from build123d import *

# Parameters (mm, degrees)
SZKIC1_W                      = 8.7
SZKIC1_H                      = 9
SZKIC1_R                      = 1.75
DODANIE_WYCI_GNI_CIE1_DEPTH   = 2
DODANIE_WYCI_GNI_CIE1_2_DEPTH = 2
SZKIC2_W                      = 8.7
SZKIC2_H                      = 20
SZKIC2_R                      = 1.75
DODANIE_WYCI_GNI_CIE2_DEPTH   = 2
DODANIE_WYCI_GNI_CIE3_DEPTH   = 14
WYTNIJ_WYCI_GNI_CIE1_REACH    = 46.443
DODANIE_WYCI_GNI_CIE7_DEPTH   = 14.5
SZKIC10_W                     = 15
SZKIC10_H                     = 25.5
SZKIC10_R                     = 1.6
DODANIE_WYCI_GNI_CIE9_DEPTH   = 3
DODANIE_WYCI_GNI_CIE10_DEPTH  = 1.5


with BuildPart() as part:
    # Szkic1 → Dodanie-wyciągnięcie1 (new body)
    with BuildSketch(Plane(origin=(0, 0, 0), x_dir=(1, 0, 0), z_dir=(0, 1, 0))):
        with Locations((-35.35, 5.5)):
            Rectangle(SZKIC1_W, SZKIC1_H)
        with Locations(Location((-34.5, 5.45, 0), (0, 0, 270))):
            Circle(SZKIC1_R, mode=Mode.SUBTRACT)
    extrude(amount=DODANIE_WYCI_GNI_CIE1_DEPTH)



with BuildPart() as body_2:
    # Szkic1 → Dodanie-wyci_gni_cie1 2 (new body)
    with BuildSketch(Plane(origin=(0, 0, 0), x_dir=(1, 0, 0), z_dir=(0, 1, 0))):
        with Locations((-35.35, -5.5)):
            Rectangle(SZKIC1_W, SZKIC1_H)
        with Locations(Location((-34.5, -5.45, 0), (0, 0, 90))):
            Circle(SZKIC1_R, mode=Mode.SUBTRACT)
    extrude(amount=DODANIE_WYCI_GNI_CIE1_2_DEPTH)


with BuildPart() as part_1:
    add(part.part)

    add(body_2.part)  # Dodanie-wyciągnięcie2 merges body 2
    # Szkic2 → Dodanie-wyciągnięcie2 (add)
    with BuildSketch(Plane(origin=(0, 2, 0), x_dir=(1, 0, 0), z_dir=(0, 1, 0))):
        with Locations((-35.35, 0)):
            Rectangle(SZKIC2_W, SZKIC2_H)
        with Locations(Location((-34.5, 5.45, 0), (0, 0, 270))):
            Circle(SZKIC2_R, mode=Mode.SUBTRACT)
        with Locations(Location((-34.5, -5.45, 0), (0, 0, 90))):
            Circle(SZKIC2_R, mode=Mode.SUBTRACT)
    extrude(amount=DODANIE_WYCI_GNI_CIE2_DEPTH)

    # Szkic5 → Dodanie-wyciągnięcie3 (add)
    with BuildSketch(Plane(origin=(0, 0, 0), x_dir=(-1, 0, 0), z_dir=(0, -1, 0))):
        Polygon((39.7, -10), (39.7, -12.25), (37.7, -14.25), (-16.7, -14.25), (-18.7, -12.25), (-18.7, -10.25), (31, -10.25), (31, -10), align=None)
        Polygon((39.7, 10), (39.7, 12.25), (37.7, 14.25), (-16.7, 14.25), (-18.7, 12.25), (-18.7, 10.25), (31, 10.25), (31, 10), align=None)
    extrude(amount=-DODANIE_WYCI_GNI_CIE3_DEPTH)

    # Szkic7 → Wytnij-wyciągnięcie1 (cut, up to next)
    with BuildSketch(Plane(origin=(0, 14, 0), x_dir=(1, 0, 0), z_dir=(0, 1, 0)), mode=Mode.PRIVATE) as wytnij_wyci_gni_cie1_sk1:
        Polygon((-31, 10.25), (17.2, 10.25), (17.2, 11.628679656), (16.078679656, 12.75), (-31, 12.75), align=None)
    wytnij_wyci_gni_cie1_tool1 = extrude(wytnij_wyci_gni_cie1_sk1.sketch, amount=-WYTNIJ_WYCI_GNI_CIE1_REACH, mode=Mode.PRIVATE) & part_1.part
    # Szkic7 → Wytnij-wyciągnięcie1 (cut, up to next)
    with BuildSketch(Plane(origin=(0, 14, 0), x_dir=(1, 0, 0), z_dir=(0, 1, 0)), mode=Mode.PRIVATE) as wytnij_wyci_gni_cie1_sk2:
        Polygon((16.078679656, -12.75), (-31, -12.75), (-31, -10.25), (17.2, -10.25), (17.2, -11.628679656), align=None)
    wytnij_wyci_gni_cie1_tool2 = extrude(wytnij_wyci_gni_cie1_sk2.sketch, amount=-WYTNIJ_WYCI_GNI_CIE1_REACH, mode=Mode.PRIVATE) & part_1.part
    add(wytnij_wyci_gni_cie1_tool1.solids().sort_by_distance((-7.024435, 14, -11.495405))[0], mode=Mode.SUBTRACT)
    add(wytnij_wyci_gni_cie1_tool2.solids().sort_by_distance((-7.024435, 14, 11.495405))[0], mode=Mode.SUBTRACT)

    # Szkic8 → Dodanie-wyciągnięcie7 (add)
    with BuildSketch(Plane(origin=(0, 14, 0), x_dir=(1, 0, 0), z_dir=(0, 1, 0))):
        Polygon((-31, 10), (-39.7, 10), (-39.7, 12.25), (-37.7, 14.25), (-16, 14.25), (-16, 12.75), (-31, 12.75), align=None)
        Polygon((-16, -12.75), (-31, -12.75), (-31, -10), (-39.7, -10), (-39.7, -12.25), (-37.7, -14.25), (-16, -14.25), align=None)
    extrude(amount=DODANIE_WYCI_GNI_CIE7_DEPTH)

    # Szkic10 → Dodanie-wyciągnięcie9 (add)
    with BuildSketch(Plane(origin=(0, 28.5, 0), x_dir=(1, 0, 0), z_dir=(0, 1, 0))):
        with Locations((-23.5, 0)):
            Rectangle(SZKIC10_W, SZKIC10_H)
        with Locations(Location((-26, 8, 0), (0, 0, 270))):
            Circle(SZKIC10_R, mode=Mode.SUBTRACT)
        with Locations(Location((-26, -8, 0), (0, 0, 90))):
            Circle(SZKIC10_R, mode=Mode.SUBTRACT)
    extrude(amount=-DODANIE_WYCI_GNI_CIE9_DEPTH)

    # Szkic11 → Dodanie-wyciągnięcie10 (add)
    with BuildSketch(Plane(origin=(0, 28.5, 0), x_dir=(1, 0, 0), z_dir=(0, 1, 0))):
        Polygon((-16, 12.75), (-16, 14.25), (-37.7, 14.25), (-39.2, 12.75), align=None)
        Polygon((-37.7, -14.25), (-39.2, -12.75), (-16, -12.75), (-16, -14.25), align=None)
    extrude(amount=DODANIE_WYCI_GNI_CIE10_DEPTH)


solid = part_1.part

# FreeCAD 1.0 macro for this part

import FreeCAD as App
import Part
import Sketcher
Q = App.Units.Quantity

doc = App.newDocument("Part")
body = doc.addObject("PartDesign::Body", "Body")

sketch1 = body.newObject("Sketcher::SketchObject", "Sketch")
sketch1.AttachmentSupport = (doc.getObject("XZ_Plane"), [""])
sketch1.MapMode = "FlatFace"
sketch1.addGeometry([
    Part.LineSegment(App.Vector(-39.7, -10, 0), App.Vector(-39.7, -1, 0)),
    Part.LineSegment(App.Vector(-39.7, -1, 0), App.Vector(-31, -1, 0)),
    Part.LineSegment(App.Vector(-31, -1, 0), App.Vector(-31, -10, 0)),
    Part.LineSegment(App.Vector(-31, -10, 0), App.Vector(-39.7, -10, 0)),
    Part.Circle(App.Vector(-34.5, -5.5, 0), App.Vector(0, 0, 1), 1.8),
], False)
sketch1.addConstraint([
    Sketcher.Constraint("Coincident", 0, 2, 1, 1),
    Sketcher.Constraint("Coincident", 1, 2, 2, 1),
    Sketcher.Constraint("Coincident", 2, 2, 3, 1),
    Sketcher.Constraint("Coincident", 3, 2, 0, 1),
    Sketcher.Constraint("Vertical", 0),
    Sketcher.Constraint("Horizontal", 1),
    Sketcher.Constraint("Vertical", 2),
    Sketcher.Constraint("Horizontal", 3),
    Sketcher.Constraint("Diameter", 4, Q("3.5 mm")),
    Sketcher.Constraint("DistanceY", 0, 1, 0, 2, Q("9 mm")),
    Sketcher.Constraint("DistanceX", 1, 1, 1, 2, Q("8.7 mm")),
    Sketcher.Constraint("DistanceY", 0, 2, -1, 1, Q("1 mm")),
    Sketcher.Constraint("DistanceX", 1, 2, -1, 1, Q("31 mm")),
    Sketcher.Constraint("DistanceX", 4, 3, -1, 1, Q("34.5 mm")),
    Sketcher.Constraint("DistanceY", 4, 3, -1, 1, Q("5.45 mm")),
])
pad1 = body.newObject("PartDesign::Pad", "Pad")
pad1.Profile = sketch1
pad1.Length = 2
pad1.Reversed = True
body2 = doc.addObject("PartDesign::Body", "Body001")

sketch2 = body2.newObject("Sketcher::SketchObject", "Sketch001")
sketch2.AttachmentSupport = (doc.getObject("XZ_Plane001"), [""])
sketch2.MapMode = "FlatFace"
sketch2.addGeometry([
    Part.LineSegment(App.Vector(-39.7, 1, 0), App.Vector(-39.7, 10, 0)),
    Part.LineSegment(App.Vector(-39.7, 10, 0), App.Vector(-31, 10, 0)),
    Part.LineSegment(App.Vector(-31, 10, 0), App.Vector(-31, 1, 0)),
    Part.LineSegment(App.Vector(-31, 1, 0), App.Vector(-39.7, 1, 0)),
    Part.Circle(App.Vector(-34.5, 5.5, 0), App.Vector(0, 0, 1), 1.8),
], False)
sketch2.addConstraint([
    Sketcher.Constraint("Coincident", 0, 2, 1, 1),
    Sketcher.Constraint("Coincident", 1, 2, 2, 1),
    Sketcher.Constraint("Coincident", 2, 2, 3, 1),
    Sketcher.Constraint("Coincident", 3, 2, 0, 1),
    Sketcher.Constraint("Vertical", 0),
    Sketcher.Constraint("Horizontal", 1),
    Sketcher.Constraint("Vertical", 2),
    Sketcher.Constraint("Horizontal", 3),
    Sketcher.Constraint("Diameter", 4, Q("3.5 mm")),
    Sketcher.Constraint("DistanceY", 0, 1, 0, 2, Q("9 mm")),
    Sketcher.Constraint("DistanceX", 1, 1, 1, 2, Q("8.7 mm")),
    Sketcher.Constraint("DistanceY", -1, 1, 0, 2, Q("10 mm")),
    Sketcher.Constraint("DistanceX", 1, 2, -1, 1, Q("31 mm")),
    Sketcher.Constraint("DistanceX", 4, 3, -1, 1, Q("34.5 mm")),
    Sketcher.Constraint("DistanceY", -1, 1, 4, 3, Q("5.45 mm")),
])
pad2 = body2.newObject("PartDesign::Pad", "Pad001")
pad2.Profile = sketch2
pad2.Length = 2
pad2.Reversed = True
body.AllowCompound = True
doc.recompute()

boolean = body.newObject("PartDesign::Boolean", "Boolean")
boolean.Type = "Fuse"
boolean.addObjects([body2])

sketch3 = body.newObject("Sketcher::SketchObject", "Sketch002")
sketch3.AttachmentSupport = (doc.getObject("XZ_Plane"), [""])
sketch3.MapMode = "FlatFace"
sketch3.AttachmentOffset = App.Placement(App.Vector(0, 0, -2), App.Rotation())
sketch3.addGeometry([
    Part.LineSegment(App.Vector(-39.7, -10, 0), App.Vector(-39.7, 10, 0)),
    Part.LineSegment(App.Vector(-39.7, 10, 0), App.Vector(-31, 10, 0)),
    Part.LineSegment(App.Vector(-31, 10, 0), App.Vector(-31, -10, 0)),
    Part.LineSegment(App.Vector(-31, -10, 0), App.Vector(-39.7, -10, 0)),
    Part.Circle(App.Vector(-34.5, 5.5, 0), App.Vector(0, 0, 1), 1.8),
    Part.Circle(App.Vector(-34.5, -5.5, 0), App.Vector(0, 0, 1), 1.8),
], False)
sketch3.addConstraint([
    Sketcher.Constraint("Coincident", 0, 2, 1, 1),
    Sketcher.Constraint("Coincident", 1, 2, 2, 1),
    Sketcher.Constraint("Coincident", 2, 2, 3, 1),
    Sketcher.Constraint("Coincident", 3, 2, 0, 1),
    Sketcher.Constraint("Vertical", 0),
    Sketcher.Constraint("Horizontal", 1),
    Sketcher.Constraint("Vertical", 2),
    Sketcher.Constraint("Horizontal", 3),
    Sketcher.Constraint("Equal", 4, 5),
    Sketcher.Constraint("Symmetric", 4, 3, 5, 3, -1),
    Sketcher.Constraint("Diameter", 4, Q("3.5 mm")),
    Sketcher.Constraint("DistanceY", 0, 1, 0, 2, Q("20 mm")),
    Sketcher.Constraint("DistanceX", 1, 1, 1, 2, Q("8.7 mm")),
    Sketcher.Constraint("DistanceY", -1, 1, 0, 2, Q("10 mm")),
    Sketcher.Constraint("DistanceX", 1, 2, -1, 1, Q("31 mm")),
    Sketcher.Constraint("DistanceX", 4, 3, -1, 1, Q("34.5 mm")),
    Sketcher.Constraint("DistanceY", 5, 3, 4, 3, Q("10.9 mm")),
])
pad3 = body.newObject("PartDesign::Pad", "Pad002")
pad3.Profile = sketch3
pad3.Length = 2
pad3.Reversed = True

sketch4 = body.newObject("Sketcher::SketchObject", "Sketch003")
sketch4.AttachmentSupport = (doc.getObject("XZ_Plane"), [""])
sketch4.MapMode = "FlatFace"
sketch4.addGeometry([
    Part.LineSegment(App.Vector(-39.7, 12.25, 0), App.Vector(-39.7, 10, 0)),
    Part.LineSegment(App.Vector(-39.7, 10, 0), App.Vector(-31, 10, 0)),
    Part.LineSegment(App.Vector(-31, 10, 0), App.Vector(-31, 10.25, 0)),
    Part.LineSegment(App.Vector(-31, 10.25, 0), App.Vector(18.7, 10.25, 0)),
    Part.LineSegment(App.Vector(18.7, 10.25, 0), App.Vector(18.7, 12.25, 0)),
    Part.LineSegment(App.Vector(18.7, 12.25, 0), App.Vector(16.7, 14.25, 0)),
    Part.LineSegment(App.Vector(16.7, 14.25, 0), App.Vector(-37.7, 14.25, 0)),
    Part.LineSegment(App.Vector(-37.7, 14.25, 0), App.Vector(-39.7, 12.25, 0)),
    Part.LineSegment(App.Vector(-39.7, -10, 0), App.Vector(-39.7, -12.25, 0)),
    Part.LineSegment(App.Vector(-39.7, -12.25, 0), App.Vector(-37.7, -14.25, 0)),
    Part.LineSegment(App.Vector(-37.7, -14.25, 0), App.Vector(16.7, -14.25, 0)),
    Part.LineSegment(App.Vector(16.7, -14.25, 0), App.Vector(18.7, -12.25, 0)),
    Part.LineSegment(App.Vector(18.7, -12.25, 0), App.Vector(18.7, -10.25, 0)),
    Part.LineSegment(App.Vector(18.7, -10.25, 0), App.Vector(-31, -10.25, 0)),
    Part.LineSegment(App.Vector(-31, -10.25, 0), App.Vector(-31, -10, 0)),
    Part.LineSegment(App.Vector(-31, -10, 0), App.Vector(-39.7, -10, 0)),
], False)
sketch4.addConstraint([
    Sketcher.Constraint("Coincident", 0, 2, 1, 1),
    Sketcher.Constraint("Coincident", 1, 2, 2, 1),
    Sketcher.Constraint("Coincident", 2, 2, 3, 1),
    Sketcher.Constraint("Coincident", 3, 2, 4, 1),
    Sketcher.Constraint("Coincident", 4, 2, 5, 1),
    Sketcher.Constraint("Coincident", 5, 2, 6, 1),
    Sketcher.Constraint("Coincident", 6, 2, 7, 1),
    Sketcher.Constraint("Coincident", 7, 2, 0, 1),
    Sketcher.Constraint("Coincident", 8, 2, 9, 1),
    Sketcher.Constraint("Coincident", 9, 2, 10, 1),
    Sketcher.Constraint("Coincident", 10, 2, 11, 1),
    Sketcher.Constraint("Coincident", 11, 2, 12, 1),
    Sketcher.Constraint("Coincident", 12, 2, 13, 1),
    Sketcher.Constraint("Coincident", 13, 2, 14, 1),
    Sketcher.Constraint("Coincident", 14, 2, 15, 1),
    Sketcher.Constraint("Coincident", 15, 2, 8, 1),
    Sketcher.Constraint("Vertical", 0),
    Sketcher.Constraint("Horizontal", 1),
    Sketcher.Constraint("Vertical", 2),
    Sketcher.Constraint("Horizontal", 3),
    Sketcher.Constraint("Vertical", 4),
    Sketcher.Constraint("Horizontal", 6),
    Sketcher.Constraint("Vertical", 8),
    Sketcher.Constraint("Horizontal", 10),
    Sketcher.Constraint("Vertical", 12),
    Sketcher.Constraint("Horizontal", 13),
    Sketcher.Constraint("Vertical", 14),
    Sketcher.Constraint("Horizontal", 15),
    Sketcher.Constraint("Symmetric", 7, 2, 8, 2, -1),
    Sketcher.Constraint("Symmetric", 6, 2, 9, 2, -1),
    Sketcher.Constraint("Symmetric", 4, 2, 11, 2, -1),
    Sketcher.Constraint("Symmetric", 2, 2, 13, 2, -1),
    Sketcher.Constraint("Perpendicular", 5, 7),
    Sketcher.Constraint("Perpendicular", 7, 9),
    Sketcher.Constraint("Perpendicular", 9, 11),
    Sketcher.Constraint("Horizontal", 4, 2, 7, 2),
    Sketcher.Constraint("Equal", 0, 8),
    Sketcher.Constraint("DistanceY", 4, 1, 4, 2, Q("2 mm")),
    Sketcher.Constraint("DistanceX", 1, 1, 1, 2, Q("8.7 mm")),
    Sketcher.Constraint("DistanceX", 3, 1, 3, 2, Q("49.7 mm")),
    Sketcher.Constraint("DistanceX", 6, 2, 6, 1, Q("54.4 mm")),
    Sketcher.Constraint("DistanceY", -1, 1, 0, 2, Q("10 mm")),
    Sketcher.Constraint("DistanceX", 1, 2, -1, 1, Q("31 mm")),
    Sketcher.Constraint("DistanceY", 0, 2, 0, 1, Q("2.25 mm")),
])
pad4 = body.newObject("PartDesign::Pad", "Pad003")
pad4.Profile = sketch4
pad4.Length = 14
pad4.Reversed = True

sketch5 = body.newObject("Sketcher::SketchObject", "Sketch004")
sketch5.AttachmentSupport = (doc.getObject("XZ_Plane"), [""])
sketch5.MapMode = "FlatFace"
sketch5.AttachmentOffset = App.Placement(App.Vector(0, 0, -14), App.Rotation())
sketch5.addGeometry([
    Part.LineSegment(App.Vector(-31, -10.2, 0), App.Vector(17.2, -10.2, 0)),
    Part.LineSegment(App.Vector(17.2, -10.2, 0), App.Vector(17.2, -11.6, 0)),
    Part.LineSegment(App.Vector(17.2, -11.6, 0), App.Vector(16.1, -12.8, 0)),
    Part.LineSegment(App.Vector(16.1, -12.8, 0), App.Vector(-31, -12.8, 0)),
    Part.LineSegment(App.Vector(-31, -12.8, 0), App.Vector(-31, -10.2, 0)),
], False)
sketch5.addConstraint([
    Sketcher.Constraint("Coincident", 0, 2, 1, 1),
    Sketcher.Constraint("Coincident", 1, 2, 2, 1),
    Sketcher.Constraint("Coincident", 2, 2, 3, 1),
    Sketcher.Constraint("Coincident", 3, 2, 4, 1),
    Sketcher.Constraint("Coincident", 4, 2, 0, 1),
    Sketcher.Constraint("Horizontal", 0),
    Sketcher.Constraint("Vertical", 1),
    Sketcher.Constraint("Horizontal", 3),
    Sketcher.Constraint("Vertical", 4),
    Sketcher.Constraint("Angle", 2, Q("-135 deg")),
    Sketcher.Constraint("DistanceX", 0, 1, 0, 2, Q("48.2 mm")),
    Sketcher.Constraint("DistanceY", 4, 1, 4, 2, Q("2.5 mm")),
    Sketcher.Constraint("DistanceX", 3, 2, -1, 1, Q("31 mm")),
    Sketcher.Constraint("DistanceY", 0, 2, -1, 1, Q("10.25 mm")),
    Sketcher.Constraint("DistanceX", 3, 2, 3, 1, Q("47.07868 mm")),
])
pocket1 = body.newObject("PartDesign::Pocket", "Pocket")
pocket1.Profile = sketch5
pocket1.Type = "UpToFirst"
pocket1.Reversed = True

sketch6 = body.newObject("Sketcher::SketchObject", "Sketch005")
sketch6.AttachmentSupport = (doc.getObject("XZ_Plane"), [""])
sketch6.MapMode = "FlatFace"
sketch6.AttachmentOffset = App.Placement(App.Vector(0, 0, -14), App.Rotation())
sketch6.addGeometry([
    Part.LineSegment(App.Vector(-31, 12.8, 0), App.Vector(16.1, 12.8, 0)),
    Part.LineSegment(App.Vector(16.1, 12.8, 0), App.Vector(17.2, 11.6, 0)),
    Part.LineSegment(App.Vector(17.2, 11.6, 0), App.Vector(17.2, 10.2, 0)),
    Part.LineSegment(App.Vector(17.2, 10.2, 0), App.Vector(-31, 10.2, 0)),
    Part.LineSegment(App.Vector(-31, 10.2, 0), App.Vector(-31, 12.8, 0)),
], False)
sketch6.addConstraint([
    Sketcher.Constraint("Coincident", 0, 2, 1, 1),
    Sketcher.Constraint("Coincident", 1, 2, 2, 1),
    Sketcher.Constraint("Coincident", 2, 2, 3, 1),
    Sketcher.Constraint("Coincident", 3, 2, 4, 1),
    Sketcher.Constraint("Coincident", 4, 2, 0, 1),
    Sketcher.Constraint("Horizontal", 0),
    Sketcher.Constraint("Vertical", 2),
    Sketcher.Constraint("Horizontal", 3),
    Sketcher.Constraint("Vertical", 4),
    Sketcher.Constraint("Angle", 1, Q("-45 deg")),
    Sketcher.Constraint("DistanceX", 3, 2, 3, 1, Q("48.2 mm")),
    Sketcher.Constraint("DistanceY", 4, 1, 4, 2, Q("2.5 mm")),
    Sketcher.Constraint("DistanceX", 3, 2, -1, 1, Q("31 mm")),
    Sketcher.Constraint("DistanceY", -1, 1, 0, 2, Q("12.75 mm")),
    Sketcher.Constraint("DistanceX", 0, 1, 0, 2, Q("47.07868 mm")),
])
pocket2 = body.newObject("PartDesign::Pocket", "Pocket001")
pocket2.Profile = sketch6
pocket2.Type = "UpToFirst"
pocket2.Reversed = True

sketch7 = body.newObject("Sketcher::SketchObject", "Sketch006")
sketch7.AttachmentSupport = (doc.getObject("XZ_Plane"), [""])
sketch7.MapMode = "FlatFace"
sketch7.AttachmentOffset = App.Placement(App.Vector(0, 0, -14), App.Rotation())
sketch7.addGeometry([
    Part.LineSegment(App.Vector(-39.7, -10, 0), App.Vector(-31, -10, 0)),
    Part.LineSegment(App.Vector(-31, -10, 0), App.Vector(-31, -12.8, 0)),
    Part.LineSegment(App.Vector(-31, -12.8, 0), App.Vector(-16, -12.8, 0)),
    Part.LineSegment(App.Vector(-16, -12.8, 0), App.Vector(-16, -14.2, 0)),
    Part.LineSegment(App.Vector(-16, -14.2, 0), App.Vector(-37.7, -14.2, 0)),
    Part.LineSegment(App.Vector(-37.7, -14.2, 0), App.Vector(-39.7, -12.2, 0)),
    Part.LineSegment(App.Vector(-39.7, -12.2, 0), App.Vector(-39.7, -10, 0)),
    Part.LineSegment(App.Vector(-16, 12.8, 0), App.Vector(-31, 12.8, 0)),
    Part.LineSegment(App.Vector(-31, 12.8, 0), App.Vector(-31, 10, 0)),
    Part.LineSegment(App.Vector(-31, 10, 0), App.Vector(-39.7, 10, 0)),
    Part.LineSegment(App.Vector(-39.7, 10, 0), App.Vector(-39.7, 12.2, 0)),
    Part.LineSegment(App.Vector(-39.7, 12.2, 0), App.Vector(-37.7, 14.2, 0)),
    Part.LineSegment(App.Vector(-37.7, 14.2, 0), App.Vector(-16, 14.2, 0)),
    Part.LineSegment(App.Vector(-16, 14.2, 0), App.Vector(-16, 12.8, 0)),
], False)
sketch7.addConstraint([
    Sketcher.Constraint("Coincident", 0, 2, 1, 1),
    Sketcher.Constraint("Coincident", 1, 2, 2, 1),
    Sketcher.Constraint("Coincident", 2, 2, 3, 1),
    Sketcher.Constraint("Coincident", 3, 2, 4, 1),
    Sketcher.Constraint("Coincident", 4, 2, 5, 1),
    Sketcher.Constraint("Coincident", 5, 2, 6, 1),
    Sketcher.Constraint("Coincident", 6, 2, 0, 1),
    Sketcher.Constraint("Coincident", 7, 2, 8, 1),
    Sketcher.Constraint("Coincident", 8, 2, 9, 1),
    Sketcher.Constraint("Coincident", 9, 2, 10, 1),
    Sketcher.Constraint("Coincident", 10, 2, 11, 1),
    Sketcher.Constraint("Coincident", 11, 2, 12, 1),
    Sketcher.Constraint("Coincident", 12, 2, 13, 1),
    Sketcher.Constraint("Coincident", 13, 2, 7, 1),
    Sketcher.Constraint("Horizontal", 0),
    Sketcher.Constraint("Vertical", 1),
    Sketcher.Constraint("Horizontal", 2),
    Sketcher.Constraint("Vertical", 3),
    Sketcher.Constraint("Horizontal", 4),
    Sketcher.Constraint("Vertical", 6),
    Sketcher.Constraint("Horizontal", 7),
    Sketcher.Constraint("Vertical", 8),
    Sketcher.Constraint("Horizontal", 9),
    Sketcher.Constraint("Vertical", 10),
    Sketcher.Constraint("Horizontal", 12),
    Sketcher.Constraint("Vertical", 13),
    Sketcher.Constraint("Symmetric", 1, 2, 7, 2, -1),
    Sketcher.Constraint("Symmetric", 6, 2, 9, 2, -1),
    Sketcher.Constraint("Symmetric", 4, 2, 11, 2, -1),
    Sketcher.Constraint("Perpendicular", 5, 11),
    Sketcher.Constraint("Vertical", 3, 2, 12, 2),
    Sketcher.Constraint("Equal", 6, 10),
    Sketcher.Constraint("DistanceX", 2, 1, 2, 2, Q("15 mm")),
    Sketcher.Constraint("DistanceX", 0, 1, 0, 2, Q("8.7 mm")),
    Sketcher.Constraint("DistanceX", 4, 2, 4, 1, Q("21.7 mm")),
    Sketcher.Constraint("DistanceY", 3, 2, 3, 1, Q("1.5 mm")),
    Sketcher.Constraint("DistanceX", 0, 2, -1, 1, Q("31 mm")),
    Sketcher.Constraint("DistanceY", 0, 2, -1, 1, Q("10 mm")),
    Sketcher.Constraint("DistanceY", 5, 2, 7, 2, Q("25 mm")),
])
pad5 = body.newObject("PartDesign::Pad", "Pad004")
pad5.Profile = sketch7
pad5.Length = 14.5
pad5.Reversed = True

sketch8 = body.newObject("Sketcher::SketchObject", "Sketch007")
sketch8.AttachmentSupport = (doc.getObject("XZ_Plane"), [""])
sketch8.MapMode = "FlatFace"
sketch8.AttachmentOffset = App.Placement(App.Vector(0, 0, -28.5), App.Rotation())
sketch8.addGeometry([
    Part.LineSegment(App.Vector(-31, -12.8, 0), App.Vector(-31, 12.8, 0)),
    Part.LineSegment(App.Vector(-31, 12.8, 0), App.Vector(-16, 12.8, 0)),
    Part.LineSegment(App.Vector(-16, 12.8, 0), App.Vector(-16, -12.8, 0)),
    Part.LineSegment(App.Vector(-16, -12.8, 0), App.Vector(-31, -12.8, 0)),
    Part.Circle(App.Vector(-26, 8, 0), App.Vector(0, 0, 1), 1.6),
    Part.Circle(App.Vector(-26, -8, 0), App.Vector(0, 0, 1), 1.6),
], False)
sketch8.addConstraint([
    Sketcher.Constraint("Coincident", 0, 2, 1, 1),
    Sketcher.Constraint("Coincident", 1, 2, 2, 1),
    Sketcher.Constraint("Coincident", 2, 2, 3, 1),
    Sketcher.Constraint("Coincident", 3, 2, 0, 1),
    Sketcher.Constraint("Vertical", 0),
    Sketcher.Constraint("Horizontal", 1),
    Sketcher.Constraint("Vertical", 2),
    Sketcher.Constraint("Horizontal", 3),
    Sketcher.Constraint("Equal", 4, 5),
    Sketcher.Constraint("Symmetric", 4, 3, 5, 3, -1),
    Sketcher.Constraint("Diameter", 4, Q("3.2 mm")),
    Sketcher.Constraint("DistanceX", 1, 1, 1, 2, Q("15 mm")),
    Sketcher.Constraint("DistanceY", 0, 1, 0, 2, Q("25.5 mm")),
    Sketcher.Constraint("DistanceX", 4, 3, -1, 1, Q("26 mm")),
    Sketcher.Constraint("DistanceY", -1, 1, 4, 3, Q("8 mm")),
    Sketcher.Constraint("DistanceX", 0, 2, -1, 1, Q("31 mm")),
    Sketcher.Constraint("DistanceY", -1, 1, 0, 2, Q("12.75 mm")),
])
pad6 = body.newObject("PartDesign::Pad", "Pad005")
pad6.Profile = sketch8
pad6.Length = 3

sketch9 = body.newObject("Sketcher::SketchObject", "Sketch008")
sketch9.AttachmentSupport = (doc.getObject("XZ_Plane"), [""])
sketch9.MapMode = "FlatFace"
sketch9.AttachmentOffset = App.Placement(App.Vector(0, 0, -28.5), App.Rotation())
sketch9.addGeometry([
    Part.LineSegment(App.Vector(-16, -12.8, 0), App.Vector(-16, -14.2, 0)),
    Part.LineSegment(App.Vector(-16, -14.2, 0), App.Vector(-37.7, -14.2, 0)),
    Part.LineSegment(App.Vector(-37.7, -14.2, 0), App.Vector(-39.2, -12.8, 0)),
    Part.LineSegment(App.Vector(-39.2, -12.8, 0), App.Vector(-16, -12.8, 0)),
    Part.LineSegment(App.Vector(-39.2, 12.8, 0), App.Vector(-37.7, 14.2, 0)),
    Part.LineSegment(App.Vector(-37.7, 14.2, 0), App.Vector(-16, 14.2, 0)),
    Part.LineSegment(App.Vector(-16, 14.2, 0), App.Vector(-16, 12.8, 0)),
    Part.LineSegment(App.Vector(-16, 12.8, 0), App.Vector(-39.2, 12.8, 0)),
], False)
sketch9.addConstraint([
    Sketcher.Constraint("Coincident", 0, 2, 1, 1),
    Sketcher.Constraint("Coincident", 1, 2, 2, 1),
    Sketcher.Constraint("Coincident", 2, 2, 3, 1),
    Sketcher.Constraint("Coincident", 3, 2, 0, 1),
    Sketcher.Constraint("Coincident", 4, 2, 5, 1),
    Sketcher.Constraint("Coincident", 5, 2, 6, 1),
    Sketcher.Constraint("Coincident", 6, 2, 7, 1),
    Sketcher.Constraint("Coincident", 7, 2, 4, 1),
    Sketcher.Constraint("Vertical", 0),
    Sketcher.Constraint("Horizontal", 1),
    Sketcher.Constraint("Horizontal", 3),
    Sketcher.Constraint("Horizontal", 5),
    Sketcher.Constraint("Vertical", 6),
    Sketcher.Constraint("Horizontal", 7),
    Sketcher.Constraint("Symmetric", 1, 2, 4, 2, -1),
    Sketcher.Constraint("Symmetric", 3, 2, 6, 2, -1),
    Sketcher.Constraint("Perpendicular", 2, 4),
    Sketcher.Constraint("Vertical", 2, 2, 7, 2),
    Sketcher.Constraint("DistanceX", 1, 2, 1, 1, Q("21.7 mm")),
    Sketcher.Constraint("DistanceX", 3, 1, 3, 2, Q("23.2 mm")),
    Sketcher.Constraint("DistanceX", 0, 2, -1, 1, Q("16 mm")),
    Sketcher.Constraint("DistanceY", 2, 2, 4, 2, Q("27 mm")),
])
pad7 = body.newObject("PartDesign::Pad", "Pad006")
pad7.Profile = sketch9
pad7.Length = 1.5
pad7.Reversed = True

doc.recompute()
